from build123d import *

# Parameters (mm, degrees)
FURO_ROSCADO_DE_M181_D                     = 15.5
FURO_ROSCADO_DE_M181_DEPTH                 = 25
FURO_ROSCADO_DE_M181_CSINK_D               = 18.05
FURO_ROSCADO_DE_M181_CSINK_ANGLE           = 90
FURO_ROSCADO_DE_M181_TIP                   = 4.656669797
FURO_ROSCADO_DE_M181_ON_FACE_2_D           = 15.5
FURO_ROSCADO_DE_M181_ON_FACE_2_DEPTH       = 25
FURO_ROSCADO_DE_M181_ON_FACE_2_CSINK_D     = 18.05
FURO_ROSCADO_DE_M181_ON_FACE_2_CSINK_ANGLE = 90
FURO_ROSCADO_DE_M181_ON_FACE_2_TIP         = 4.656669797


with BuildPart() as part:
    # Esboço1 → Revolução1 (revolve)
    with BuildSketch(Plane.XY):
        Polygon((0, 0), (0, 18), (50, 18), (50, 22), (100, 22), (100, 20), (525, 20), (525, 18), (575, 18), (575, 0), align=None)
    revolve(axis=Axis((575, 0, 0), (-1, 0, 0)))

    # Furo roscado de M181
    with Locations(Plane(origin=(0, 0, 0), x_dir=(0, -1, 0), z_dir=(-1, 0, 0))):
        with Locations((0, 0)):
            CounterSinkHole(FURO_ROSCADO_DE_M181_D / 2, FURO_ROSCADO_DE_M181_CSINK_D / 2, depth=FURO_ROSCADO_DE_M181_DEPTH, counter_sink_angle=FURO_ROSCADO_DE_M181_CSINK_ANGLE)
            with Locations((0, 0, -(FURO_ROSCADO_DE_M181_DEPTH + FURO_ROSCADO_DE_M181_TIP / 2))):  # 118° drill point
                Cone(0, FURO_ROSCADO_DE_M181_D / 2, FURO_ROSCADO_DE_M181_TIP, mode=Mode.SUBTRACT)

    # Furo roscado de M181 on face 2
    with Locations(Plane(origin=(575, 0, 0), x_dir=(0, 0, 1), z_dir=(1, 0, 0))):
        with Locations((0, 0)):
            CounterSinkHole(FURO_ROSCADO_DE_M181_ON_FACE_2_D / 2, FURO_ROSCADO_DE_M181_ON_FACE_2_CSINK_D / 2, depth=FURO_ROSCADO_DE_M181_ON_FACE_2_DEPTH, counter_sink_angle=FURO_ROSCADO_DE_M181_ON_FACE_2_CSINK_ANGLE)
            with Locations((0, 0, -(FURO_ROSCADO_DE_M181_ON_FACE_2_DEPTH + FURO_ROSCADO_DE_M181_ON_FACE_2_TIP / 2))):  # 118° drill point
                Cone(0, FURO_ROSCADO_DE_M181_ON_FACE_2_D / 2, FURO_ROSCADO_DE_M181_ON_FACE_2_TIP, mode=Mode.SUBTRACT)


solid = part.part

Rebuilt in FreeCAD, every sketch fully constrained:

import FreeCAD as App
import Part
import Sketcher

V = App.Vector

doc = App.newDocument("Part")
params = doc.addObject("Spreadsheet::Sheet", "Params")
for row, (alias, value) in enumerate([
    ("sketch1_width", "575 mm"),
    ("sketch1_width2", "50 mm"),
    ("sketch1_height", "18 mm"),
    ("sketch1_height2", "2 mm"),
    ("revolution_angle", "360 deg"),
    ("sketch2_diameter", "15.5 mm"),
    ("hole_diameter", "15.5 mm"),
    ("hole_depth", "25 mm"),
    ("hole_csink_diameter", "18.05 mm"),
    ("sketch3_diameter", "15.5 mm"),
    ("hole2_diameter", "15.5 mm"),
    ("hole2_depth", "25 mm"),
    ("hole2_csink_diameter", "18.05 mm"),
], start=1):
    params.set(f"A{row}", alias)
    params.set(f"B{row}", "=" + value)
    params.setAlias(f"B{row}", alias)

body = doc.addObject("PartDesign::Body", "Body")

sketch1 = body.newObject("Sketcher::SketchObject", "Sketch")
sketch1.AttachmentSupport = (doc.getObject("XY_Plane"), [""])
sketch1.MapMode = "FlatFace"
sketch1.addGeometry([
    Part.LineSegment(V(0, 18, 0), V(0, 0, 0)),
    Part.LineSegment(V(0, 0, 0), V(575, 0, 0)),
    Part.LineSegment(V(575, 0, 0), V(575, 18, 0)),
    Part.LineSegment(V(575, 18, 0), V(525, 18, 0)),
    Part.LineSegment(V(525, 18, 0), V(525, 20, 0)),
    Part.LineSegment(V(525, 20, 0), V(100, 20, 0)),
    Part.LineSegment(V(100, 20, 0), V(100, 22, 0)),
    Part.LineSegment(V(100, 22, 0), V(50, 22, 0)),
    Part.LineSegment(V(50, 22, 0), V(50, 18, 0)),
    Part.LineSegment(V(50, 18, 0), V(0, 18, 0)),
], False)
sketch1.addConstraint([
    Sketcher.Constraint("Coincident", 0, 2, 1, 1),
    Sketcher.Constraint("Coincident", 1, 2, 2, 1),
    Sketcher.Constraint("Coincident", 2, 2, 3, 1),
    Sketcher.Constraint("Coincident", 3, 2, 4, 1),
    Sketcher.Constraint("Coincident", 4, 2, 5, 1),
    Sketcher.Constraint("Coincident", 5, 2, 6, 1),
    Sketcher.Constraint("Coincident", 6, 2, 7, 1),
    Sketcher.Constraint("Coincident", 7, 2, 8, 1),
    Sketcher.Constraint("Coincident", 8, 2, 9, 1),
    Sketcher.Constraint("Coincident", 9, 2, 0, 1),
    Sketcher.Constraint("Vertical", 0),
    Sketcher.Constraint("Horizontal", 1),
    Sketcher.Constraint("Vertical", 2),
    Sketcher.Constraint("Horizontal", 3),
    Sketcher.Constraint("Vertical", 4),
    Sketcher.Constraint("Horizontal", 5),
    Sketcher.Constraint("Vertical", 6),
    Sketcher.Constraint("Horizontal", 7),
    Sketcher.Constraint("Vertical", 8),
    Sketcher.Constraint("Horizontal", 9),
    Sketcher.Constraint("Coincident", 0, 2, -1, 1),
    Sketcher.Constraint("Horizontal", 3, 2, 8, 2),
    Sketcher.Constraint("Equal", 3, 7),
    Sketcher.Constraint("Equal", 7, 9),
    Sketcher.Constraint("Equal", 4, 6),
    Sketcher.Constraint("DistanceX", 1, 1, 1, 2, 575.0),
    Sketcher.Constraint("DistanceX", 3, 2, 3, 1, 50.0),
    Sketcher.Constraint("DistanceY", 0, 2, 0, 1, 18.0),
    Sketcher.Constraint("DistanceY", 4, 1, 4, 2, 2.0),
])
sketch1.setExpression("Constraints[25]", "Params.sketch1_width")
sketch1.setExpression("Constraints[26]", "Params.sketch1_width2")
sketch1.setExpression("Constraints[27]", "Params.sketch1_height")
sketch1.setExpression("Constraints[28]", "Params.sketch1_height2")
revolution = body.newObject("PartDesign::Revolution", "Revolution")
revolution.Profile = sketch1
revolution.ReferenceAxis = (sketch1, ["H_Axis"])
revolution.setExpression("Angle", "Params.revolution_angle")

sketch2 = body.newObject("Sketcher::SketchObject", "Sketch001")
sketch2.AttachmentSupport = (doc.getObject("YZ_Plane"), [""])
sketch2.MapMode = "FlatFace"
sketch2.addGeometry(Part.Circle(V(0, 0, 0), V(0, 0, 1), 7.75), False)
sketch2.addConstraint([
    Sketcher.Constraint("Coincident", 0, 3, -1, 1),
    Sketcher.Constraint("Diameter", 0, 15.5),
])
sketch2.setExpression("Constraints[1]", "Params.sketch2_diameter")
doc.recompute()
hole = body.newObject("PartDesign::Hole", "Hole")
hole.Profile = sketch2
hole.ThreadType = "None"
hole.setExpression("Diameter", "Params.hole_diameter")
hole.DepthType = "Dimension"
hole.setExpression("Depth", "Params.hole_depth")
hole.DrillPoint = "Angled"
hole.DrillPointAngle = 118
hole.HoleCutType = "Countersink"
hole.setExpression("HoleCutDiameter", "Params.hole_csink_diameter")
hole.HoleCutCountersinkAngle = 90
hole.Reversed = True

sketch3 = body.newObject("Sketcher::SketchObject", "Sketch002")
sketch3.AttachmentSupport = (doc.getObject("YZ_Plane"), [""])
sketch3.MapMode = "FlatFace"
sketch3.AttachmentOffset = App.Placement(V(0, 0, 575), App.Rotation())
sketch3.addGeometry(Part.Circle(V(0, 0, 0), V(0, 0, 1), 7.75), False)
sketch3.addConstraint([
    Sketcher.Constraint("Coincident", 0, 3, -1, 1),
    Sketcher.Constraint("Diameter", 0, 15.5),
])
sketch3.setExpression("Constraints[1]", "Params.sketch3_diameter")
doc.recompute()
hole2 = body.newObject("PartDesign::Hole", "Hole001")
hole2.Profile = sketch3
hole2.ThreadType = "None"
hole2.setExpression("Diameter", "Params.hole2_diameter")
hole2.DepthType = "Dimension"
hole2.setExpression("Depth", "Params.hole2_depth")
hole2.DrillPoint = "Angled"
hole2.DrillPointAngle = 118
hole2.HoleCutType = "Countersink"
hole2.setExpression("HoleCutDiameter", "Params.hole2_csink_diameter")
hole2.HoleCutCountersinkAngle = 90

doc.recompute()
